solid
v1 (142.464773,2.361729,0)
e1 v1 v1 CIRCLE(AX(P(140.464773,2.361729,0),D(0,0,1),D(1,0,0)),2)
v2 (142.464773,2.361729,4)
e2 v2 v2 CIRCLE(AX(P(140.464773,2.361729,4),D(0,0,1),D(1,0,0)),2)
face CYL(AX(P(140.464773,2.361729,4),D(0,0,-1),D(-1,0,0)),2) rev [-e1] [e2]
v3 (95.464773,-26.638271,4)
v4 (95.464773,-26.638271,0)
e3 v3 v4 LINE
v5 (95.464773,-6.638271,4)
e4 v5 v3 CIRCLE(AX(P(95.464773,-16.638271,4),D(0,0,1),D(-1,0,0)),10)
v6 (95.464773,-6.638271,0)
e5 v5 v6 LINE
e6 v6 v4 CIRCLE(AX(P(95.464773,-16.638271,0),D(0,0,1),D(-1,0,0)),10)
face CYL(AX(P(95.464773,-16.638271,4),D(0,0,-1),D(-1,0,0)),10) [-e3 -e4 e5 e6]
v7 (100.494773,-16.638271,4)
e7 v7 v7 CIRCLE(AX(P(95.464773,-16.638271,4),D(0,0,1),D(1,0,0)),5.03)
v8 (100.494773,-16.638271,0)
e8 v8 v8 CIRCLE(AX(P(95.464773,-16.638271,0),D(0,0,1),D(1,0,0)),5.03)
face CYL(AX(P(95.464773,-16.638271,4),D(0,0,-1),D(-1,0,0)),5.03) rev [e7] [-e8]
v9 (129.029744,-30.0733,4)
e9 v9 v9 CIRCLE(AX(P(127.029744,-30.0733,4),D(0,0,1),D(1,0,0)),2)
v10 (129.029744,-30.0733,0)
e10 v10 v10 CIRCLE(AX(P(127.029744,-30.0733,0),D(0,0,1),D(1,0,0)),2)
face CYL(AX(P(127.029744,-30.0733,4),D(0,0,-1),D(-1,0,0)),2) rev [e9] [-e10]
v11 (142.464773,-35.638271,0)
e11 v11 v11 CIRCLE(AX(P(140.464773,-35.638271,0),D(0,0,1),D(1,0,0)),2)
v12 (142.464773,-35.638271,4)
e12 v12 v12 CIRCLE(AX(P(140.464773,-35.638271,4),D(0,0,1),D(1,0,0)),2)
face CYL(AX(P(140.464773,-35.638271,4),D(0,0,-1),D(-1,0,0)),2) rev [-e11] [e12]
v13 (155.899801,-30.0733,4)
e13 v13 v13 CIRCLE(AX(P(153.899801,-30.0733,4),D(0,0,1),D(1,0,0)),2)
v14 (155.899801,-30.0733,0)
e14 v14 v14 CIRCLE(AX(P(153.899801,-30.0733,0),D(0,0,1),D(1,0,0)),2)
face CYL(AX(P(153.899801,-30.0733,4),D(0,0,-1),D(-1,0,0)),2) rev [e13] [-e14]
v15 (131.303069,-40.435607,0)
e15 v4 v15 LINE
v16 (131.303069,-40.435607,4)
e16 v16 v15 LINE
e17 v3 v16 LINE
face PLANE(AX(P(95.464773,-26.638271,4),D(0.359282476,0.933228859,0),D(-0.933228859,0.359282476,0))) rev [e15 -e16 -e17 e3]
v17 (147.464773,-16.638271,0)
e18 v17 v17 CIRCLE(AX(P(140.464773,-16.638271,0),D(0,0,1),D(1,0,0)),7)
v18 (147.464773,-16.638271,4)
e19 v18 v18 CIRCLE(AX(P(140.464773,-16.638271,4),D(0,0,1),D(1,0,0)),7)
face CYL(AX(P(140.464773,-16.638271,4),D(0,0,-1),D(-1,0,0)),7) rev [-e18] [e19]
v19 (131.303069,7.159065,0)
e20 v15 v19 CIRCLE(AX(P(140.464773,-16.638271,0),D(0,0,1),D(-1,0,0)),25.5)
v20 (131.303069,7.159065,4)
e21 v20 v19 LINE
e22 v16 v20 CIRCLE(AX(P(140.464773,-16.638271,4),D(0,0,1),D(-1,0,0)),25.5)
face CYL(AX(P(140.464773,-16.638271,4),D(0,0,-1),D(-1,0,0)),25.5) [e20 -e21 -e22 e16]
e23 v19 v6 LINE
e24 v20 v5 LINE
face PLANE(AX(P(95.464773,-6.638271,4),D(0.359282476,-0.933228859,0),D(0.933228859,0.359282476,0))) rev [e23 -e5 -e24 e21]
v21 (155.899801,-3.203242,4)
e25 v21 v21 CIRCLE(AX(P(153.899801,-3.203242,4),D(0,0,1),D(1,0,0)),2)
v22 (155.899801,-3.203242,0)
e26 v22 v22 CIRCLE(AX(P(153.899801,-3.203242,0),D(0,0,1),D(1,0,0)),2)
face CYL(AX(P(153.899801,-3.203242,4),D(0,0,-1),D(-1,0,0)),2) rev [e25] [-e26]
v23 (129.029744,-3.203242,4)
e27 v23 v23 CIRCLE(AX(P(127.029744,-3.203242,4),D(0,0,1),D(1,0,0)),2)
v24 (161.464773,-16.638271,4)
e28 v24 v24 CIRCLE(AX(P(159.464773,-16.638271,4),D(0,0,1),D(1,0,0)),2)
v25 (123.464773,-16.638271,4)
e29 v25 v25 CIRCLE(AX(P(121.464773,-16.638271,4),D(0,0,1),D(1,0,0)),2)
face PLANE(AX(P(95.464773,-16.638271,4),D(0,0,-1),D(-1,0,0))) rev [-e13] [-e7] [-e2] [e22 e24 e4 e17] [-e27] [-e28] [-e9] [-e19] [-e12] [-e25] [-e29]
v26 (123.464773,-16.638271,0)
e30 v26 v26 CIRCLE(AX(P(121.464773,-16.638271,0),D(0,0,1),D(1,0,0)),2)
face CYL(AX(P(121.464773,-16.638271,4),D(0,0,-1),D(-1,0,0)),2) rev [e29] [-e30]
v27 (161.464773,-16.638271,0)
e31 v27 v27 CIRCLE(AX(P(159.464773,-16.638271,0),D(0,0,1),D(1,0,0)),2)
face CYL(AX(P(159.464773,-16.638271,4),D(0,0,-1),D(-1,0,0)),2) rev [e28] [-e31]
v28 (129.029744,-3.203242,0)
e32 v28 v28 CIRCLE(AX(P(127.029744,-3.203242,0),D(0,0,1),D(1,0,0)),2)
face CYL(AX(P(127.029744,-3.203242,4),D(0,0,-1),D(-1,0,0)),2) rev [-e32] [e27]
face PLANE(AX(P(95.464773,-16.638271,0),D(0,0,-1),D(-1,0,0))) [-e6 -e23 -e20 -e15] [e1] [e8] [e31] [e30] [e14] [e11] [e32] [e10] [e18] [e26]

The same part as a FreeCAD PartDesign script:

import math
import FreeCAD as App
import Part
import Sketcher
Q = App.Units.Quantity

doc = App.newDocument("Part")
params = doc.addObject("Spreadsheet::Sheet", "Params")
for row, (alias, value) in enumerate([
    ("sketch1_diameter", "4 mm"),
    ("sketch1_diameter2", "14 mm"),
    ("sketch1_radius", "10 mm"),
    ("sketch1_radius2", "25.5 mm"),
    ("sketch1_diameter3", "10.06 mm"),
    ("pad1_length", "4 mm"),
], start=1):
    params.set(f"A{row}", alias)
    params.set(f"B{row}", "=" + value)
    params.setAlias(f"B{row}", alias)

body = doc.addObject("PartDesign::Body", "Body")

# Sketch on XY plane
sketch1 = body.newObject("Sketcher::SketchObject", "Sketch")
sketch1.AttachmentSupport = (doc.getObject("XY_Plane"), [""])
sketch1.MapMode = "FlatFace"
sketch1.addGeometry([
    Part.LineSegment(App.Vector(95.464773, -26.638271, 0), App.Vector(131.303069, -40.435607, 0)),  # 0
    Part.ArcOfCircle(Part.Circle(App.Vector(140.464773, -16.638271, 0), App.Vector(0, 0, 1), 25.5), math.radians(-111.056137), math.radians(111.056137)),  # 1
    Part.LineSegment(App.Vector(131.303069, 7.159065, 0), App.Vector(95.464773, -6.638271, 0)),  # 2
    Part.ArcOfCircle(Part.Circle(App.Vector(95.464773, -16.638271, 0), App.Vector(0, 0, 1), 10), math.radians(90), math.radians(270)),  # 3
    Part.Circle(App.Vector(140.464773, -35.638271, 0), App.Vector(0, 0, 1), 2),  # 4
    Part.Circle(App.Vector(127.029744, -30.0733, 0), App.Vector(0, 0, 1), 2),  # 5
    Part.Circle(App.Vector(153.899801, -30.0733, 0), App.Vector(0, 0, 1), 2),  # 6
    Part.Circle(App.Vector(95.464773, -16.638271, 0), App.Vector(0, 0, 1), 5.03),  # 7
    Part.Circle(App.Vector(121.464773, -16.638271, 0), App.Vector(0, 0, 1), 2),  # 8
    Part.Circle(App.Vector(140.464773, -16.638271, 0), App.Vector(0, 0, 1), 7),  # 9
    Part.Circle(App.Vector(159.464773, -16.638271, 0), App.Vector(0, 0, 1), 2),  # 10
    Part.Circle(App.Vector(127.029744, -3.203242, 0), App.Vector(0, 0, 1), 2),  # 11
    Part.Circle(App.Vector(140.464773, 2.361729, 0), App.Vector(0, 0, 1), 2),  # 12
    Part.Circle(App.Vector(153.899801, -3.203242, 0), App.Vector(0, 0, 1), 2),  # 13
], False)
sketch1.addConstraint([
    Sketcher.Constraint("Tangent", 0, 2, 1, 1),
    Sketcher.Constraint("Tangent", 1, 2, 2, 1),
    Sketcher.Constraint("Coincident", 2, 2, 3, 1),
    Sketcher.Constraint("Coincident", 3, 2, 0, 1),
    Sketcher.Constraint("Coincident", 7, 3, 3, 3),
    Sketcher.Constraint("Coincident", 9, 3, 1, 3),
    Sketcher.Constraint("Equal", 4, 5),
    Sketcher.Constraint("Equal", 5, 6),
    Sketcher.Constraint("Equal", 6, 8),
    Sketcher.Constraint("Equal", 8, 10),
    Sketcher.Constraint("Equal", 10, 11),
    Sketcher.Constraint("Equal", 11, 12),
    Sketcher.Constraint("Equal", 12, 13),
    Sketcher.Constraint("Horizontal", 1, 3, 3, 3),
    Sketcher.Constraint("Horizontal", 5, 3, 6, 3),
    Sketcher.Constraint("Horizontal", 7, 3, 8, 3),
    Sketcher.Constraint("Horizontal", 9, 3, 10, 3),
    Sketcher.Constraint("Horizontal", 11, 3, 13, 3),
    Sketcher.Constraint("Vertical", 1, 3, 4, 3),
    Sketcher.Constraint("Vertical", 5, 3, 11, 3),
    Sketcher.Constraint("Vertical", 9, 3, 12, 3),
    Sketcher.Constraint("Vertical", 6, 3, 13, 3),
    Sketcher.Constraint("Vertical", 0, 2, 1, 2),
    Sketcher.Constraint("Vertical", 7, 3, 2, 2),
    Sketcher.Constraint("Diameter", 4, Q("4 mm")),
    Sketcher.Constraint("Diameter", 9, Q("14 mm")),
    Sketcher.Constraint("Radius", 3, Q("10 mm")),
    Sketcher.Constraint("Radius", 1, Q("25.5 mm")),
    Sketcher.Constraint("Diameter", 7, Q("10.06 mm")),
    Sketcher.Constraint("DistanceX", 3, 3, 1, 3, Q("45 mm")),
    Sketcher.Constraint("DistanceY", 4, 3, 1, 3, Q("19 mm")),
    Sketcher.Constraint("DistanceX", 8, 3, 1, 3, Q("19 mm")),
    Sketcher.Constraint("DistanceX", 1, 3, 10, 3, Q("19 mm")),
    Sketcher.Constraint("DistanceY", 1, 3, 12, 3, Q("19 mm")),
    Sketcher.Constraint("DistanceY", 5, 3, -1, 1, Q("30.0733 mm")),
    Sketcher.Constraint("DistanceX", -1, 1, 6, 3, Q("153.899801 mm")),
    Sketcher.Constraint("DistanceY", 1, 3, -1, 1, Q("16.638271 mm")),
    Sketcher.Constraint("DistanceX", -1, 1, 0, 2, Q("131.303069 mm")),
    Sketcher.Constraint("DistanceX", 5, 3, 4, 3, Q("13.435029 mm")),
    Sketcher.Constraint("DistanceY", 8, 3, 11, 3, Q("13.435029 mm")),
])
sketch1.setExpression("Constraints[24]", "Params.sketch1_diameter")
sketch1.setExpression("Constraints[25]", "Params.sketch1_diameter2")
sketch1.setExpression("Constraints[26]", "Params.sketch1_radius")
sketch1.setExpression("Constraints[27]", "Params.sketch1_radius2")
sketch1.setExpression("Constraints[28]", "Params.sketch1_diameter3")
pad1 = body.newObject("PartDesign::Pad", "Pad")
pad1.Profile = sketch1
pad1.setExpression("Length", "Params.pad1_length")

doc.recompute()
